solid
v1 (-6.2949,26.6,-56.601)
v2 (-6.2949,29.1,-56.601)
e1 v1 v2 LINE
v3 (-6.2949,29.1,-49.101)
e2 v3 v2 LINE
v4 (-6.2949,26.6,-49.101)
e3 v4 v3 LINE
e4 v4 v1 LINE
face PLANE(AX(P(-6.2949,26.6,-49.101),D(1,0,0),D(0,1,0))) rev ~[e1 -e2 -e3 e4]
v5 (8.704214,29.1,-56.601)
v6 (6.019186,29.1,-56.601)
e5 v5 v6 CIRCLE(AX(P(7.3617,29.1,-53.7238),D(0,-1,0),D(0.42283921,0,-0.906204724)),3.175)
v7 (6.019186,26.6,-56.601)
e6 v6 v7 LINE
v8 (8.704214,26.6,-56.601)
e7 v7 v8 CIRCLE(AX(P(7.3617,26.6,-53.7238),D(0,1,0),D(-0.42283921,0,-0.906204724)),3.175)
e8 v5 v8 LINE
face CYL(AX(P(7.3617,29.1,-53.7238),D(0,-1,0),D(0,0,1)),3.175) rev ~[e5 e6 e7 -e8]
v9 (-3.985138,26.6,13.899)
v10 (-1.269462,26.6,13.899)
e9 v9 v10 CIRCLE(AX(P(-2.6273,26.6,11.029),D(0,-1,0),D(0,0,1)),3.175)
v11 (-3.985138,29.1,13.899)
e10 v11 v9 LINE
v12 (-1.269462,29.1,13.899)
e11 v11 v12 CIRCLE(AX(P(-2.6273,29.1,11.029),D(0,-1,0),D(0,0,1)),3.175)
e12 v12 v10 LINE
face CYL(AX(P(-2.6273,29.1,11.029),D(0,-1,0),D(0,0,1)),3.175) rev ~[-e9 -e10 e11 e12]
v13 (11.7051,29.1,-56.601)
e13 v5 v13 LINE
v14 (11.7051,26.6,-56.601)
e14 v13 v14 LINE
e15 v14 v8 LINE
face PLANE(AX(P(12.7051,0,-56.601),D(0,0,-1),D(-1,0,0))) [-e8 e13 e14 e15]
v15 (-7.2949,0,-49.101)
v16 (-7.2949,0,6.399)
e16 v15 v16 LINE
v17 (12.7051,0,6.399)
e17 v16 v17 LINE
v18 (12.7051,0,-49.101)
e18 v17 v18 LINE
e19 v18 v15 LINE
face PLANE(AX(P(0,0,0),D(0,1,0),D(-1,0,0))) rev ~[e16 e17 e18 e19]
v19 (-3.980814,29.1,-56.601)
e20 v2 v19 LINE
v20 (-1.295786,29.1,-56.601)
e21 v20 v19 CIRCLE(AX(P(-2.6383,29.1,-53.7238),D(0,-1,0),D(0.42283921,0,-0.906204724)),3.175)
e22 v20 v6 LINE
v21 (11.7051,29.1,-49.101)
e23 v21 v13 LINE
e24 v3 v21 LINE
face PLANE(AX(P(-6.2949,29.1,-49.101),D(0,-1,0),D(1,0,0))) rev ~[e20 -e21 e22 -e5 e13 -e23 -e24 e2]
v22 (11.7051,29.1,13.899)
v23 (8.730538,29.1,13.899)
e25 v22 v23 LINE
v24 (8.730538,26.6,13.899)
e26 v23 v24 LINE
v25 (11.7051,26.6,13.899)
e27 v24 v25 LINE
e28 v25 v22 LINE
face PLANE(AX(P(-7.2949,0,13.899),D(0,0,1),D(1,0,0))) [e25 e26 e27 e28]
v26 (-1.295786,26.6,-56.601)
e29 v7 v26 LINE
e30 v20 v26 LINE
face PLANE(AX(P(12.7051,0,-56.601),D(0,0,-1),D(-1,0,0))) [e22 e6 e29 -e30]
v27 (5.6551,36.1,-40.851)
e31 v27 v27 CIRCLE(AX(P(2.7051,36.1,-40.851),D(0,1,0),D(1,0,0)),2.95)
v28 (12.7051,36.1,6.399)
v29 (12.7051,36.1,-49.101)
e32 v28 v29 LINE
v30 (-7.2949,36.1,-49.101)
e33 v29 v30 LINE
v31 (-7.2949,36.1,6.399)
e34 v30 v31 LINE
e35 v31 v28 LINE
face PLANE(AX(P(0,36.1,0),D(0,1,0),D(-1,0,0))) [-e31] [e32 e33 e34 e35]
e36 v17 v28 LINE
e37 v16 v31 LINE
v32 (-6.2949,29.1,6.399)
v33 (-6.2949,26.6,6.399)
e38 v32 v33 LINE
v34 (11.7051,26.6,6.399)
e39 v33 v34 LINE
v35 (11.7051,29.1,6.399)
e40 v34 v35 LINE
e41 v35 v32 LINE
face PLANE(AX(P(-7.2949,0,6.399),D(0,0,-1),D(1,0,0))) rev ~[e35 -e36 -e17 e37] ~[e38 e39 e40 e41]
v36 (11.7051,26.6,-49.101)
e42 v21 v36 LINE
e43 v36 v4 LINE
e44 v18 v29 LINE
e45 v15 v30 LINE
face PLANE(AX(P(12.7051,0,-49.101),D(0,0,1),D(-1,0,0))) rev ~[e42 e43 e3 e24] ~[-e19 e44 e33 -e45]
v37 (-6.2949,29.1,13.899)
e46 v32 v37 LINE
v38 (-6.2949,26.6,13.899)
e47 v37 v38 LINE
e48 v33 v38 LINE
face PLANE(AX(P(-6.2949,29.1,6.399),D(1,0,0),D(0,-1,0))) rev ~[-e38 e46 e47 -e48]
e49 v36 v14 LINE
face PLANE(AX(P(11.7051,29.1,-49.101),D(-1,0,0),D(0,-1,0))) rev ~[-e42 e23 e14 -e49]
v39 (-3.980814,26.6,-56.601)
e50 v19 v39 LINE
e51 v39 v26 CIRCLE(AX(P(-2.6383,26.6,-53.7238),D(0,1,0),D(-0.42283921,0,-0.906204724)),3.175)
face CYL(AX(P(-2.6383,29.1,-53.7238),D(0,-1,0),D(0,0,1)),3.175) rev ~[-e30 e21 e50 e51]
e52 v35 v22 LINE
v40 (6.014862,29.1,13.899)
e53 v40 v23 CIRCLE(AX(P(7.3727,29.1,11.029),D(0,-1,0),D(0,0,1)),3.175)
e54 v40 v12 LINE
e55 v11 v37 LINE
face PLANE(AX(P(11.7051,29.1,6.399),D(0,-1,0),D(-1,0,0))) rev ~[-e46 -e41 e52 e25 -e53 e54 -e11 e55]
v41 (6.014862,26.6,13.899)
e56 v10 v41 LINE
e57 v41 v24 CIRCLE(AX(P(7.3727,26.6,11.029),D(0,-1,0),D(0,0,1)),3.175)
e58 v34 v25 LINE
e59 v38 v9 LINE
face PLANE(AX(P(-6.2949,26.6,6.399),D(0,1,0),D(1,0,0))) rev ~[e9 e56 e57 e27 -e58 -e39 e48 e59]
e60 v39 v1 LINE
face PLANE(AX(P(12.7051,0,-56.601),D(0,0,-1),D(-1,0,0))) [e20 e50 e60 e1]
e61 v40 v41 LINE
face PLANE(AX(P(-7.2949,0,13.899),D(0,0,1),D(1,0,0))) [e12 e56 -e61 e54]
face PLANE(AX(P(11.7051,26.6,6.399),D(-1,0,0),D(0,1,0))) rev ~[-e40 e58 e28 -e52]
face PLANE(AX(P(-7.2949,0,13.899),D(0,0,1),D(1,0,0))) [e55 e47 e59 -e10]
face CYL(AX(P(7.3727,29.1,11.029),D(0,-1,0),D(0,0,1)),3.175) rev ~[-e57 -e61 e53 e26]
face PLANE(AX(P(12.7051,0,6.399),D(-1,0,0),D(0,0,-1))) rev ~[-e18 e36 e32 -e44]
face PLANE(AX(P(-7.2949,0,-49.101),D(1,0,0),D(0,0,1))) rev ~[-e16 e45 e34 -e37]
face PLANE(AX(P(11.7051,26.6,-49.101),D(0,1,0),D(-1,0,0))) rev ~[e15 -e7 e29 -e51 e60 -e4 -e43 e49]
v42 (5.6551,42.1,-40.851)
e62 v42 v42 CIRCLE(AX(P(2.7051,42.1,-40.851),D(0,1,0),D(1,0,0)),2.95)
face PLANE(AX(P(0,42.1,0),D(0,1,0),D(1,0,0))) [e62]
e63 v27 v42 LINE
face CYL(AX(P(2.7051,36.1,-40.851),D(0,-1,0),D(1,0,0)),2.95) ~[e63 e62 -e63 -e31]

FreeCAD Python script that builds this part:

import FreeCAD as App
import Part
import Sketcher
from FreeCAD import Vector
Q = App.Units.Quantity

doc = App.newDocument("Part")
body = doc.addObject("PartDesign::Body", "Body")

sketch1 = body.newObject("Sketcher::SketchObject", "Sketch")
sketch1.AttachmentSupport = (doc.getObject("XZ_Plane"), [""])
sketch1.MapMode = "FlatFace"
sketch1.addGeometry(Part.LineSegment(Vector(-7.2949, -49.101, 0), Vector(-7.2949, 6.399, 0)), False)
sketch1.addGeometry(Part.LineSegment(Vector(-7.2949, 6.399, 0), Vector(12.7051, 6.399, 0)), False)
sketch1.addGeometry(Part.LineSegment(Vector(12.7051, 6.399, 0), Vector(12.7051, -49.101, 0)), False)
sketch1.addGeometry(Part.LineSegment(Vector(12.7051, -49.101, 0), Vector(-7.2949, -49.101, 0)), False)
sketch1.addConstraint(Sketcher.Constraint("Coincident", 0, 2, 1, 1))
sketch1.addConstraint(Sketcher.Constraint("Coincident", 1, 2, 2, 1))
sketch1.addConstraint(Sketcher.Constraint("Coincident", 2, 2, 3, 1))
sketch1.addConstraint(Sketcher.Constraint("Coincident", 3, 2, 0, 1))
sketch1.addConstraint(Sketcher.Constraint("Vertical", 0))
sketch1.addConstraint(Sketcher.Constraint("Horizontal", 1))
sketch1.addConstraint(Sketcher.Constraint("Vertical", 2))
sketch1.addConstraint(Sketcher.Constraint("Horizontal", 3))
sketch1.addConstraint(Sketcher.Constraint("DistanceX", 1, 1, 1, 2, Q("20 mm")))
sketch1.addConstraint(Sketcher.Constraint("DistanceY", 0, 1, 0, 2, Q("55.5 mm")))
sketch1.addConstraint(Sketcher.Constraint("DistanceX", 0, 2, -1, 1, Q("7.295 mm")))
sketch1.addConstraint(Sketcher.Constraint("DistanceY", -1, 1, 0, 2, Q("6.399 mm")))
pad1 = body.newObject("PartDesign::Pad", "Pad")
pad1.Profile = sketch1
pad1.Length = 36.1
pad1.Reversed = True

sketch2 = body.newObject("Sketcher::SketchObject", "Sketch001")
sketch2.AttachmentSupport = (doc.getObject("XY_Plane"), [""])
sketch2.MapMode = "FlatFace"
sketch2.AttachmentOffset = App.Placement(Vector(0, 0, 6.399), App.Rotation())
sketch2.addGeometry(Part.LineSegment(Vector(-6.2949, 29.1, 0), Vector(-6.2949, 26.6, 0)), False)
sketch2.addGeometry(Part.LineSegment(Vector(-6.2949, 26.6, 0), Vector(11.7051, 26.6, 0)), False)
sketch2.addGeometry(Part.LineSegment(Vector(11.7051, 26.6, 0), Vector(11.7051, 29.1, 0)), False)
sketch2.addGeometry(Part.LineSegment(Vector(11.7051, 29.1, 0), Vector(-6.2949, 29.1, 0)), False)
sketch2.addConstraint(Sketcher.Constraint("Coincident", 0, 2, 1, 1))
sketch2.addConstraint(Sketcher.Constraint("Coincident", 1, 2, 2, 1))
sketch2.addConstraint(Sketcher.Constraint("Coincident", 2, 2, 3, 1))
sketch2.addConstraint(Sketcher.Constraint("Coincident", 3, 2, 0, 1))
sketch2.addConstraint(Sketcher.Constraint("Vertical", 0))
sketch2.addConstraint(Sketcher.Constraint("Horizontal", 1))
sketch2.addConstraint(Sketcher.Constraint("Vertical", 2))
sketch2.addConstraint(Sketcher.Constraint("Horizontal", 3))
sketch2.addConstraint(Sketcher.Constraint("DistanceY", 0, 2, 0, 1, Q("2.5 mm")))
sketch2.addConstraint(Sketcher.Constraint("DistanceX", 1, 1, 1, 2, Q("18 mm")))
sketch2.addConstraint(Sketcher.Constraint("DistanceY", -1, 1, 0, 2, Q("26.6 mm")))
sketch2.addConstraint(Sketcher.Constraint("DistanceX", 0, 2, -1, 1, Q("6.295 mm")))
pad2 = body.newObject("PartDesign::Pad", "Pad001")
pad2.Profile = sketch2
pad2.Length = 7.5

sketch3 = body.newObject("Sketcher::SketchObject", "Sketch002")
sketch3.AttachmentSupport = (doc.getObject("XY_Plane"), [""])
sketch3.MapMode = "FlatFace"
sketch3.AttachmentOffset = App.Placement(Vector(0, 0, -49.101), App.Rotation())
sketch3.addGeometry(Part.LineSegment(Vector(11.7051, 29.1, 0), Vector(11.7051, 26.6, 0)), False)
sketch3.addGeometry(Part.LineSegment(Vector(11.7051, 26.6, 0), Vector(-6.2949, 26.6, 0)), False)
sketch3.addGeometry(Part.LineSegment(Vector(-6.2949, 26.6, 0), Vector(-6.2949, 29.1, 0)), False)
sketch3.addGeometry(Part.LineSegment(Vector(-6.2949, 29.1, 0), Vector(11.7051, 29.1, 0)), False)
sketch3.addConstraint(Sketcher.Constraint("Coincident", 0, 2, 1, 1))
sketch3.addConstraint(Sketcher.Constraint("Coincident", 1, 2, 2, 1))
sketch3.addConstraint(Sketcher.Constraint("Coincident", 2, 2, 3, 1))
sketch3.addConstraint(Sketcher.Constraint("Coincident", 3, 2, 0, 1))
sketch3.addConstraint(Sketcher.Constraint("Vertical", 0))
sketch3.addConstraint(Sketcher.Constraint("Horizontal", 1))
sketch3.addConstraint(Sketcher.Constraint("Vertical", 2))
sketch3.addConstraint(Sketcher.Constraint("Horizontal", 3))
sketch3.addConstraint(Sketcher.Constraint("DistanceX", 1, 2, 1, 1, Q("18 mm")))
sketch3.addConstraint(Sketcher.Constraint("DistanceY", 0, 2, 0, 1, Q("2.5 mm")))
sketch3.addConstraint(Sketcher.Constraint("DistanceY", -1, 1, 0, 2, Q("26.6 mm")))
sketch3.addConstraint(Sketcher.Constraint("DistanceX", -1, 1, 0, 2, Q("11.705 mm")))
pad3 = body.newObject("PartDesign::Pad", "Pad002")
pad3.Profile = sketch3
pad3.Length = 7.5
pad3.Reversed = True

sketch4 = body.newObject("Sketcher::SketchObject", "Sketch003")
sketch4.AttachmentSupport = (doc.getObject("XZ_Plane"), [""])
sketch4.MapMode = "FlatFace"
sketch4.AttachmentOffset = App.Placement(Vector(0, 0, -36.1), App.Rotation())
sketch4.addGeometry(Part.Circle(Vector(2.7051, -40.851, 0), Vector(0, 0, 1), 2.95), False)
sketch4.addConstraint(Sketcher.Constraint("Diameter", 0, Q("5.9 mm")))
sketch4.addConstraint(Sketcher.Constraint("DistanceX", -1, 1, 0, 3, Q("2.705 mm")))
sketch4.addConstraint(Sketcher.Constraint("DistanceY", 0, 3, -1, 1, Q("40.851 mm")))
pad4 = body.newObject("PartDesign::Pad", "Pad003")
pad4.Profile = sketch4
pad4.Length = 6
pad4.Reversed = True

sketch5 = body.newObject("Sketcher::SketchObject", "Sketch004")
sketch5.AttachmentSupport = (doc.getObject("XZ_Plane"), [""])
sketch5.MapMode = "FlatFace"
sketch5.AttachmentOffset = App.Placement(Vector(0, 0, -29.1), App.Rotation())
sketch5.addGeometry(Part.Circle(Vector(-2.6273, 11.029, 0), Vector(0, 0, 1), 3.175), False)
sketch5.addGeometry(Part.Circle(Vector(7.3727, 11.029, 0), Vector(0, 0, 1), 3.175), False)
sketch5.addConstraint(Sketcher.Constraint("Equal", 0, 1))
sketch5.addConstraint(Sketcher.Constraint("Horizontal", 0, 3, 1, 3))
sketch5.addConstraint(Sketcher.Constraint("Diameter", 0, Q("6.35 mm")))
sketch5.addConstraint(Sketcher.Constraint("DistanceX", 0, 3, 1, 3, Q("10 mm")))
sketch5.addConstraint(Sketcher.Constraint("DistanceY", -1, 1, 0, 3, Q("11.029 mm")))
sketch5.addConstraint(Sketcher.Constraint("DistanceX", 0, 3, -1, 1, Q("2.6273 mm")))
doc.recompute()
hole = body.newObject("PartDesign::Hole", "Hole")
hole.Profile = sketch5
hole.ThreadType = "None"
hole.Diameter = 6.35
hole.DepthType = "ThroughAll"
hole.Reversed = True

sketch6 = body.newObject("Sketcher::SketchObject", "Sketch005")
sketch6.AttachmentSupport = (doc.getObject("XZ_Plane"), [""])
sketch6.MapMode = "FlatFace"
sketch6.AttachmentOffset = App.Placement(Vector(0, 0, -29.1), App.Rotation())
sketch6.addGeometry(Part.Circle(Vector(-2.6383, -53.7238, 0), Vector(0, 0, 1), 3.175), False)
sketch6.addGeometry(Part.Circle(Vector(7.3617, -53.7238, 0), Vector(0, 0, 1), 3.175), False)
sketch6.addConstraint(Sketcher.Constraint("Equal", 0, 1))
sketch6.addConstraint(Sketcher.Constraint("Horizontal", 0, 3, 1, 3))
sketch6.addConstraint(Sketcher.Constraint("Diameter", 0, Q("6.35 mm")))
sketch6.addConstraint(Sketcher.Constraint("DistanceX", 0, 3, 1, 3, Q("10 mm")))
sketch6.addConstraint(Sketcher.Constraint("DistanceX", 0, 3, -1, 1, Q("2.6383 mm")))
sketch6.addConstraint(Sketcher.Constraint("DistanceY", 0, 3, -1, 1, Q("53.7238 mm")))
doc.recompute()
hole2 = body.newObject("PartDesign::Hole", "Hole001")
hole2.Profile = sketch6
hole2.ThreadType = "None"
hole2.Diameter = 6.35
hole2.DepthType = "ThroughAll"
hole2.Reversed = True

doc.recompute()
